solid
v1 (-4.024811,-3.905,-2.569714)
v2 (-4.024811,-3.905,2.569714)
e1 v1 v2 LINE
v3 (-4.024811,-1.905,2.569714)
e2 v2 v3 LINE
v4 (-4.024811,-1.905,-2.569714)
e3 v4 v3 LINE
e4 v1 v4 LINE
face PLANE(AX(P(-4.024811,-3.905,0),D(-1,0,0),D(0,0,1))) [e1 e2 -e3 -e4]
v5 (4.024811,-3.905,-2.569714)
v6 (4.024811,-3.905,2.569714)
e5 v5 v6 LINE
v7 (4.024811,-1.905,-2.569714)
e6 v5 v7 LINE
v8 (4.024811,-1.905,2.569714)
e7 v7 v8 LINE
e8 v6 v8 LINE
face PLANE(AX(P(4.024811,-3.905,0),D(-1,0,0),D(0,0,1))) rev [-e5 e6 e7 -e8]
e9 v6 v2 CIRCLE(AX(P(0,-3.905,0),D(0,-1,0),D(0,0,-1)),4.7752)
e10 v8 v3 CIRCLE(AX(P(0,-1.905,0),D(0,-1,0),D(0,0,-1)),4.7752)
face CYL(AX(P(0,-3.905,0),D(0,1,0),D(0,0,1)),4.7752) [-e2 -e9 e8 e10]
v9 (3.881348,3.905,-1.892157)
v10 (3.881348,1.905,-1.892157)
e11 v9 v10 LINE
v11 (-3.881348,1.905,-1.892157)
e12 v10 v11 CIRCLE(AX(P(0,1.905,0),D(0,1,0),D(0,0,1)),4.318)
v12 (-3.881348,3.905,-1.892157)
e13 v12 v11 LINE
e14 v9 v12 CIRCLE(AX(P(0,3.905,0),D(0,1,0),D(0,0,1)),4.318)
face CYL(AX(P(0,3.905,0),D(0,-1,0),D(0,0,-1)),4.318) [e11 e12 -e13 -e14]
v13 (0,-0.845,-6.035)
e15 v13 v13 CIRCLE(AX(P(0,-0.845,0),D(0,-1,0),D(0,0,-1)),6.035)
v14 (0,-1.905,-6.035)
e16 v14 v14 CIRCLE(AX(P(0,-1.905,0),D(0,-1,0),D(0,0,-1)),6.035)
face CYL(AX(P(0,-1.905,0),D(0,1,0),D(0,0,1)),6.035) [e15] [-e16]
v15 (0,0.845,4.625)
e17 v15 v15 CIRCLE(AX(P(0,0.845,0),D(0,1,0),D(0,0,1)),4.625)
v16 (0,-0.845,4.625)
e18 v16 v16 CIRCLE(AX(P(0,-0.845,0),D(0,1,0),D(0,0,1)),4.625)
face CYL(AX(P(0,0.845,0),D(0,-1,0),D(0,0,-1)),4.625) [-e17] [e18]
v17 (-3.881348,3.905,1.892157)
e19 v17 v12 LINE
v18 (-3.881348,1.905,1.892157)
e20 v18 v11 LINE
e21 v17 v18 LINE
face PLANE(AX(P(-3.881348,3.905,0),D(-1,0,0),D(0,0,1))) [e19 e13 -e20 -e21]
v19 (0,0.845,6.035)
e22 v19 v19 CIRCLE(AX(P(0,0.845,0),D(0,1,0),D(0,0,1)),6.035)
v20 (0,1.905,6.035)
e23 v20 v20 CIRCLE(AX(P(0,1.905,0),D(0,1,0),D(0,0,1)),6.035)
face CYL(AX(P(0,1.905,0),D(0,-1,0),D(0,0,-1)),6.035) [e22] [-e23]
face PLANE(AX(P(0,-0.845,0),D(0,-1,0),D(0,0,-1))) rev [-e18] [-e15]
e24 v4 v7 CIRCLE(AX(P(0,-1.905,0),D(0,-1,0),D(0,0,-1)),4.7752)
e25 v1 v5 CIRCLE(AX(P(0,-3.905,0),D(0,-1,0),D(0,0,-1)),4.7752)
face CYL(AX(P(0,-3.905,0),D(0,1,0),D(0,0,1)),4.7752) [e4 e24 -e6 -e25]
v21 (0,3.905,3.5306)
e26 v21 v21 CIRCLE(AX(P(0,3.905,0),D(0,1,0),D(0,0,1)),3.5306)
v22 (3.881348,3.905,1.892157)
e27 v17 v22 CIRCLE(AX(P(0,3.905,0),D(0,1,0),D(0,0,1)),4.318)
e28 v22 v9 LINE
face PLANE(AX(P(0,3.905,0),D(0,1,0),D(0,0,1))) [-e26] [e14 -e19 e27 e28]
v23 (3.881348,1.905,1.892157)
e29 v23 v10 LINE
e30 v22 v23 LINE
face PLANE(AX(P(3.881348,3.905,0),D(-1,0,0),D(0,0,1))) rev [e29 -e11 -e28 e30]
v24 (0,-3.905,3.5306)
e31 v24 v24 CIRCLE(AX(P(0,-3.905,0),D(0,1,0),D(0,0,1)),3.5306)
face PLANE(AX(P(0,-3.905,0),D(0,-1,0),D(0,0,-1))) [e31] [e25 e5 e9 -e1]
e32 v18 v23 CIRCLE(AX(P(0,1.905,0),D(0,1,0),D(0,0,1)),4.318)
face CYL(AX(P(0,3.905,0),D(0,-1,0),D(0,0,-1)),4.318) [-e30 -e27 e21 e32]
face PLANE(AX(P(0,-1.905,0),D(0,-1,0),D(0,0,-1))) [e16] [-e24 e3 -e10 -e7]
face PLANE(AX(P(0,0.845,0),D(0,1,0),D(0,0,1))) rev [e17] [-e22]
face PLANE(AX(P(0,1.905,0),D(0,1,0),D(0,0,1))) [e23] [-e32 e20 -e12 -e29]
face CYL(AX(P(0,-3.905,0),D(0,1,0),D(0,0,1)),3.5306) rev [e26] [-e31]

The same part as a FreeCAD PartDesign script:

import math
import FreeCAD as App
import Part
import Sketcher

V = App.Vector
Q = App.Units.Quantity

doc = App.newDocument("Part")
body = doc.addObject("PartDesign::Body", "Body")

# Sketch on XZ plane
sketch1 = body.newObject("Sketcher::SketchObject", "Sketch")
sketch1.AttachmentSupport = (doc.getObject("XZ_Plane"), [""])
sketch1.MapMode = "FlatFace"
sketch1.addGeometry(Part.Circle(V(0, 0, 0), V(0, 0, 1), 4.6), False)
sketch1.addConstraint(Sketcher.Constraint("Coincident", 0, 3, -1, 1))
sketch1.addConstraint(Sketcher.Constraint("Diameter", 0, Q("9.25 mm")))
pad1 = body.newObject("PartDesign::Pad", "Pad")
pad1.Profile = sketch1
pad1.Length = 1.69
pad1.Midplane = True

# Sketch on XZ plane
sketch2 = body.newObject("Sketcher::SketchObject", "Sketch001")
sketch2.AttachmentSupport = (doc.getObject("XZ_Plane"), [""])
sketch2.MapMode = "FlatFace"
sketch2.AttachmentOffset = App.Placement(V(0, 0, -0.845), App.Rotation())
sketch2.addGeometry(Part.Circle(V(0, 0, 0), V(0, 0, 1), 6), False)
sketch2.addConstraint(Sketcher.Constraint("Coincident", 0, 3, -1, 1))
sketch2.addConstraint(Sketcher.Constraint("Diameter", 0, Q("12.07 mm")))
pad2 = body.newObject("PartDesign::Pad", "Pad001")
pad2.Profile = sketch2
pad2.Length = 1.06
pad2.Reversed = True

# Sketch on XZ plane
sketch3 = body.newObject("Sketcher::SketchObject", "Sketch002")
sketch3.AttachmentSupport = (doc.getObject("XZ_Plane"), [""])
sketch3.MapMode = "FlatFace"
sketch3.AttachmentOffset = App.Placement(V(0, 0, 0.845), App.Rotation())
sketch3.addGeometry(Part.Circle(V(0, 0, 0), V(0, 0, 1), 6), False)
sketch3.addConstraint(Sketcher.Constraint("Coincident", 0, 3, -1, 1))
sketch3.addConstraint(Sketcher.Constraint("Diameter", 0, Q("12.07 mm")))
pad3 = body.newObject("PartDesign::Pad", "Pad002")
pad3.Profile = sketch3
pad3.Length = 1.06

# Sketch on XZ plane
sketch4 = body.newObject("Sketcher::SketchObject", "Sketch003")
sketch4.AttachmentSupport = (doc.getObject("XZ_Plane"), [""])
sketch4.MapMode = "FlatFace"
sketch4.AttachmentOffset = App.Placement(V(0, 0, -0.075 * 25.4), App.Rotation())
sketch4.addGeometry(Part.LineSegment(V(-3.9, -1.9, 0), V(-3.9, 1.9, 0)), False)
sketch4.addGeometry(Part.ArcOfCircle(Part.Circle(V(0, 0, 0), V(0, 0, 1), 4.3), math.radians(26), math.radians(154)), False)
sketch4.addGeometry(Part.LineSegment(V(3.9, 1.9, 0), V(3.9, -1.9, 0)), False)
sketch4.addGeometry(Part.ArcOfCircle(Part.Circle(V(0, 0, 0), V(0, 0, 1), 4.3), math.radians(-154), math.radians(-26)), False)
sketch4.addConstraint(Sketcher.Constraint("Coincident", 0, 2, 1, 2))
sketch4.addConstraint(Sketcher.Constraint("Coincident", 1, 1, 2, 1))
sketch4.addConstraint(Sketcher.Constraint("Coincident", 2, 2, 3, 2))
sketch4.addConstraint(Sketcher.Constraint("Coincident", 3, 1, 0, 1))
sketch4.addConstraint(Sketcher.Constraint("Vertical", 0))
sketch4.addConstraint(Sketcher.Constraint("Vertical", 2))
sketch4.addConstraint(Sketcher.Constraint("Coincident", 1, 3, -1, 1))
sketch4.addConstraint(Sketcher.Constraint("Coincident", 3, 3, -1, 1))
sketch4.addConstraint(Sketcher.Constraint("Equal", 1, 3))
sketch4.addConstraint(Sketcher.Constraint("Horizontal", 0, 2, 1, 1))
sketch4.addConstraint(Sketcher.Constraint("Radius", 1, Q("0.17 in")))
sketch4.addConstraint(Sketcher.Constraint("DistanceY", 0, 1, 0, 2, Q("3.784315 mm")))
pad4 = body.newObject("PartDesign::Pad", "Pad003")
pad4.Profile = sketch4
pad4.Length = 2
pad4.Reversed = True

# Sketch on XZ plane
sketch5 = body.newObject("Sketcher::SketchObject", "Sketch004")
sketch5.AttachmentSupport = (doc.getObject("XZ_Plane"), [""])
sketch5.MapMode = "FlatFace"
sketch5.AttachmentOffset = App.Placement(V(0, 0, 0.075 * 25.4), App.Rotation())
sketch5.addGeometry(Part.LineSegment(V(-4, 2.6, 0), V(-4, -2.6, 0)), False)
sketch5.addGeometry(Part.ArcOfCircle(Part.Circle(V(0, 0, 0), V(0, 0, 1), 4.8), math.radians(-147), math.radians(-33)), False)
sketch5.addGeometry(Part.LineSegment(V(4, -2.6, 0), V(4, 2.6, 0)), False)
sketch5.addGeometry(Part.ArcOfCircle(Part.Circle(V(0, 0, 0), V(0, 0, 1), 4.8), math.radians(33), math.radians(147)), False)
sketch5.addConstraint(Sketcher.Constraint("Coincident", 0, 2, 1, 1))
sketch5.addConstraint(Sketcher.Constraint("Coincident", 1, 2, 2, 1))
sketch5.addConstraint(Sketcher.Constraint("Coincident", 2, 2, 3, 1))
sketch5.addConstraint(Sketcher.Constraint("Coincident", 3, 2, 0, 1))
sketch5.addConstraint(Sketcher.Constraint("Vertical", 0))
sketch5.addConstraint(Sketcher.Constraint("Vertical", 2))
sketch5.addConstraint(Sketcher.Constraint("Coincident", 1, 3, -1, 1))
sketch5.addConstraint(Sketcher.Constraint("Coincident", 3, 3, -1, 1))
sketch5.addConstraint(Sketcher.Constraint("Equal", 1, 3))
sketch5.addConstraint(Sketcher.Constraint("Horizontal", 0, 2, 1, 2))
sketch5.addConstraint(Sketcher.Constraint("Radius", 1, Q("0.188 in")))
sketch5.addConstraint(Sketcher.Constraint("DistanceY", 0, 2, 0, 1, Q("5.139427 mm")))
pad5 = body.newObject("PartDesign::Pad", "Pad004")
pad5.Profile = sketch5
pad5.Length = 2

# Sketch on XZ plane
sketch6 = body.newObject("Sketcher::SketchObject", "Sketch005")
sketch6.AttachmentSupport = (doc.getObject("XZ_Plane"), [""])
sketch6.MapMode = "FlatFace"
sketch6.AttachmentOffset = App.Placement(V(0, 0, -3.905), App.Rotation())
sketch6.addGeometry(Part.Circle(V(0, 0, 0), V(0, 0, 1), 3.5), False)
sketch6.addConstraint(Sketcher.Constraint("Coincident", 0, 3, -1, 1))
sketch6.addConstraint(Sketcher.Constraint("Diameter", 0, Q("0.278 in")))
pocket1 = body.newObject("PartDesign::Pocket", "Pocket")
pocket1.Profile = sketch6
pocket1.Type = "ThroughAll"
pocket1.Reversed = True

doc.recompute()
